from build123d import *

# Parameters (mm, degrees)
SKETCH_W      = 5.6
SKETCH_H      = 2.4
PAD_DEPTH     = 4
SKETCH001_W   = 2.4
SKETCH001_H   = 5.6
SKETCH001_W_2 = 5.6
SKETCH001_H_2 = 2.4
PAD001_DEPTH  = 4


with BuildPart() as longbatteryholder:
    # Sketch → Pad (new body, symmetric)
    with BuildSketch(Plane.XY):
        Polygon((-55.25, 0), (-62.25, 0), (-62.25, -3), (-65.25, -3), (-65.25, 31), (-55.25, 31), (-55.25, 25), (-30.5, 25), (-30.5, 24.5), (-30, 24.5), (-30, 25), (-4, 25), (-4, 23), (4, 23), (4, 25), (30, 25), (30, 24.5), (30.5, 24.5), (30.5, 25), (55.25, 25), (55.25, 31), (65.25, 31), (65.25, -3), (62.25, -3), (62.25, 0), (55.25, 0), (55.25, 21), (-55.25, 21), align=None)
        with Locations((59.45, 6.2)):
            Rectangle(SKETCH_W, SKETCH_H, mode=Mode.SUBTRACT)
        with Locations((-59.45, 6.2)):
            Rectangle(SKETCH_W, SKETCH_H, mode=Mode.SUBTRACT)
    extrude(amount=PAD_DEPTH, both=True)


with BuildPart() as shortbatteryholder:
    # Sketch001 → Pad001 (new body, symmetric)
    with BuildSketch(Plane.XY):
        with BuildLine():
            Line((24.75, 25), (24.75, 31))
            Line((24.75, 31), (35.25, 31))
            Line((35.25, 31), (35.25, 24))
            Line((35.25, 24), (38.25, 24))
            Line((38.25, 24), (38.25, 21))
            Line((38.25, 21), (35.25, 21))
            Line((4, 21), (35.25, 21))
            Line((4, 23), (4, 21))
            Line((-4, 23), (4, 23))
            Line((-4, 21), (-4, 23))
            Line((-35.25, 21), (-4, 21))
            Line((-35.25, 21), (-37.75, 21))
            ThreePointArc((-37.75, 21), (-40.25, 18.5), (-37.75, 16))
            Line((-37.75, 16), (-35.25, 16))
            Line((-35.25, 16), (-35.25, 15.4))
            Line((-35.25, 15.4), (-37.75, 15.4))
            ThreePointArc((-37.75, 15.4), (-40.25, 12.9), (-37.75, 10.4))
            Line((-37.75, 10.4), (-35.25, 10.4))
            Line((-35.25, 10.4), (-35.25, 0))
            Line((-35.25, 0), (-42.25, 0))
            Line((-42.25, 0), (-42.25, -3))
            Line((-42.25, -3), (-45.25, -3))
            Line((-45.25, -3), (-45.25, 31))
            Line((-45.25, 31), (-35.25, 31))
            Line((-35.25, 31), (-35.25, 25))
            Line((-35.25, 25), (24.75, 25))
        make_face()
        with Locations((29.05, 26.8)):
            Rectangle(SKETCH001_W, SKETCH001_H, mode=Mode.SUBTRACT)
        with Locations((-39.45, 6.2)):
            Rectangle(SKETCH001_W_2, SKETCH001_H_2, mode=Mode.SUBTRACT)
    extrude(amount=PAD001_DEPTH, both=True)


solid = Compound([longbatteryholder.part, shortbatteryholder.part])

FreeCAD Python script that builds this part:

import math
import FreeCAD as App
import Part
import Sketcher
from FreeCAD import Vector
Q = App.Units.Quantity


def add_polygon(sketch, points):
    """Adds a closed chain of lines whose ends are joined by coincident constraints."""
    first, n = sketch.GeometryCount, len(points)
    for a, b in zip(points, points[1:] + points[:1]):
        sketch.addGeometry(Part.LineSegment(App.Vector(*a, 0), App.Vector(*b, 0)), False)
    for i in range(n):
        sketch.addConstraint(Sketcher.Constraint("Coincident", first + i, 2, first + (i + 1) % n, 1))

doc = App.newDocument("Part")
params = doc.addObject("Spreadsheet::Sheet", "Params")
for row, (alias, value) in enumerate([
    ("sketch1_width", "7 mm"),
    ("sketch1_width2", "3 mm"),
    ("sketch1_width3", "26 mm"),
    ("sketch1_width4", "8 mm"),
    ("sketch1_height", "21 mm"),
    ("pad1_length", "8 mm"),
    ("sketch2_radius", "2.5 mm"),
    ("sketch2_width", "60 mm"),
    ("sketch2_width2", "10 mm"),
    ("sketch2_width3", "3 mm"),
    ("sketch2_width4", "8 mm"),
    ("pad2_length", "8 mm"),
], start=1):
    params.set(f"A{row}", alias)
    params.set(f"B{row}", "=" + value)
    params.setAlias(f"B{row}", alias)

body = doc.addObject("PartDesign::Body", "Body")

sketch1 = body.newObject("Sketcher::SketchObject", "Sketch")
sketch1.AttachmentSupport = (doc.getObject("XY_Plane"), [""])
sketch1.MapMode = "FlatFace"
add_polygon(sketch1, [(-62.2, 0), (-55.2, 0), (-55.2, 21), (55.2, 21), (55.2, 0), (62.2, 0), (62.2, -3), (65.2, -3), (65.2, 31), (55.2, 31), (55.2, 25), (30.5, 25), (30.5, 24.5), (30, 24.5), (30, 25), (4, 25), (4, 23), (-4, 23), (-4, 25), (-30, 25), (-30, 24.5), (-30.5, 24.5), (-30.5, 25), (-55.2, 25), (-55.2, 31), (-65.2, 31), (-65.2, -3), (-62.2, -3)])
add_polygon(sketch1, [(56.6, 5), (56.6, 7.4), (62.2, 7.4), (62.2, 5)])
add_polygon(sketch1, [(-62.2, 5), (-62.2, 7.4), (-56.6, 7.4), (-56.6, 5)])
sketch1.addConstraint([
    Sketcher.Constraint("Horizontal", 0),
    Sketcher.Constraint("Vertical", 1),
    Sketcher.Constraint("Horizontal", 2),
    Sketcher.Constraint("Vertical", 3),
    Sketcher.Constraint("Horizontal", 4),
    Sketcher.Constraint("Vertical", 5),
    Sketcher.Constraint("Horizontal", 6),
    Sketcher.Constraint("Vertical", 7),
    Sketcher.Constraint("Horizontal", 8),
    Sketcher.Constraint("Vertical", 9),
    Sketcher.Constraint("Horizontal", 10),
    Sketcher.Constraint("Vertical", 11),
    Sketcher.Constraint("Horizontal", 12),
    Sketcher.Constraint("Vertical", 13),
    Sketcher.Constraint("Horizontal", 14),
    Sketcher.Constraint("Vertical", 15),
    Sketcher.Constraint("Horizontal", 16),
    Sketcher.Constraint("Vertical", 17),
    Sketcher.Constraint("Horizontal", 18),
    Sketcher.Constraint("Vertical", 19),
    Sketcher.Constraint("Horizontal", 20),
    Sketcher.Constraint("Vertical", 21),
    Sketcher.Constraint("Horizontal", 22),
    Sketcher.Constraint("Vertical", 23),
    Sketcher.Constraint("Horizontal", 24),
    Sketcher.Constraint("Vertical", 25),
    Sketcher.Constraint("Horizontal", 26),
    Sketcher.Constraint("Vertical", 27),
    Sketcher.Constraint("Vertical", 28),
    Sketcher.Constraint("Horizontal", 29),
    Sketcher.Constraint("Vertical", 30),
    Sketcher.Constraint("Horizontal", 31),
    Sketcher.Constraint("Vertical", 32),
    Sketcher.Constraint("Horizontal", 33),
    Sketcher.Constraint("Vertical", 34),
    Sketcher.Constraint("Horizontal", 35),
    Sketcher.Constraint("Symmetric", 0, 2, 3, 2, -1, 1),
    Sketcher.Constraint("Symmetric", 14, 2, 17, 2, -2),
    Sketcher.Constraint("Symmetric", 12, 2, 19, 2, -2),
    Sketcher.Constraint("Symmetric", 10, 2, 21, 2, -2),
    Sketcher.Constraint("Symmetric", 8, 2, 23, 2, -2),
    Sketcher.Constraint("Symmetric", 6, 2, 25, 2, -2),
    Sketcher.Constraint("Symmetric", 4, 2, 27, 2, -2),
    Sketcher.Constraint("Symmetric", 29, 2, 32, 2, -2),
    Sketcher.Constraint("Symmetric", 31, 2, 34, 2, -2),
    Sketcher.Constraint("Horizontal", 10, 2, 13, 2),
    Sketcher.Constraint("Vertical", 3, 2, 8, 2),
    Sketcher.Constraint("Vertical", 5, 2, 29, 2),
    Sketcher.Constraint("Equal", 26, 5),
    Sketcher.Constraint("Equal", 20, 11),
    Sketcher.Constraint("DistanceX", 0, 1, 0, 2, Q("7 mm")),
    Sketcher.Constraint("DistanceX", 6, 1, 6, 2, Q("3 mm")),
    Sketcher.Constraint("DistanceX", 14, 2, 14, 1, Q("26 mm")),
    Sketcher.Constraint("DistanceX", 16, 2, 16, 1, Q("8 mm")),
    Sketcher.Constraint("DistanceY", 1, 1, 1, 2, Q("21 mm")),
    Sketcher.Constraint("DistanceY", 7, 1, 7, 2, Q("34 mm")),
    Sketcher.Constraint("DistanceY", 9, 2, 9, 1, Q("6 mm")),
    Sketcher.Constraint("DistanceY", 15, 2, 15, 1, Q("2 mm")),
    Sketcher.Constraint("DistanceX", 2, 1, 2, 2, Q("110.5 mm")),
    Sketcher.Constraint("DistanceX", 12, 2, 12, 1, Q("0.5 mm")),
    Sketcher.Constraint("DistanceX", 29, 1, 29, 2, Q("5.6 mm")),
    Sketcher.Constraint("DistanceY", 28, 1, 28, 2, Q("2.4 mm")),
    Sketcher.Constraint("DistanceY", -1, 1, 30, 2, Q("5 mm")),
])
sketch1.setExpression("Constraints[86]", "Params.sketch1_width")
sketch1.setExpression("Constraints[87]", "Params.sketch1_width2")
sketch1.setExpression("Constraints[88]", "Params.sketch1_width3")
sketch1.setExpression("Constraints[89]", "Params.sketch1_width4")
sketch1.setExpression("Constraints[90]", "Params.sketch1_height")
pad1 = body.newObject("PartDesign::Pad", "Pad")
pad1.Profile = sketch1
pad1.setExpression("Length", "Params.pad1_length")
pad1.Midplane = True
body2 = doc.addObject("PartDesign::Body", "Body001")

sketch2 = body2.newObject("Sketcher::SketchObject", "Sketch001")
sketch2.AttachmentSupport = (doc.getObject("XY_Plane001"), [""])
sketch2.MapMode = "FlatFace"
sketch2.addGeometry(Part.LineSegment(Vector(24.8, 31, 0), Vector(24.8, 25, 0)), False)
sketch2.addGeometry(Part.LineSegment(Vector(24.8, 25, 0), Vector(-35.2, 25, 0)), False)
sketch2.addGeometry(Part.LineSegment(Vector(-35.2, 25, 0), Vector(-35.2, 31, 0)), False)
sketch2.addGeometry(Part.LineSegment(Vector(-35.2, 31, 0), Vector(-45.2, 31, 0)), False)
sketch2.addGeometry(Part.LineSegment(Vector(-45.2, 31, 0), Vector(-45.2, -3, 0)), False)
sketch2.addGeometry(Part.LineSegment(Vector(-45.2, -3, 0), Vector(-42.2, -3, 0)), False)
sketch2.addGeometry(Part.LineSegment(Vector(-42.2, -3, 0), Vector(-42.2, 0, 0)), False)
sketch2.addGeometry(Part.LineSegment(Vector(-42.2, 0, 0), Vector(-35.2, 0, 0)), False)
sketch2.addGeometry(Part.LineSegment(Vector(-35.2, 0, 0), Vector(-35.2, 10.4, 0)), False)
sketch2.addGeometry(Part.LineSegment(Vector(-35.2, 10.4, 0), Vector(-37.8, 10.4, 0)), False)
sketch2.addGeometry(Part.ArcOfCircle(Part.Circle(Vector(-37.8, 12.9, 0), Vector(0, 0, 1), 2.5), math.radians(90), math.radians(270)), False)
sketch2.addGeometry(Part.LineSegment(Vector(-37.8, 15.4, 0), Vector(-35.2, 15.4, 0)), False)
sketch2.addGeometry(Part.LineSegment(Vector(-35.2, 15.4, 0), Vector(-35.2, 16, 0)), False)
sketch2.addGeometry(Part.LineSegment(Vector(-35.2, 16, 0), Vector(-37.8, 16, 0)), False)
sketch2.addGeometry(Part.ArcOfCircle(Part.Circle(Vector(-37.8, 18.5, 0), Vector(0, 0, 1), 2.5), math.radians(90), math.radians(270)), False)
sketch2.addGeometry(Part.LineSegment(Vector(-37.8, 21, 0), Vector(-4, 21, 0)), False)
sketch2.addGeometry(Part.LineSegment(Vector(-4, 21, 0), Vector(-4, 23, 0)), False)
sketch2.addGeometry(Part.LineSegment(Vector(-4, 23, 0), Vector(4, 23, 0)), False)
sketch2.addGeometry(Part.LineSegment(Vector(4, 23, 0), Vector(4, 21, 0)), False)
sketch2.addGeometry(Part.LineSegment(Vector(4, 21, 0), Vector(38.2, 21, 0)), False)
sketch2.addGeometry(Part.LineSegment(Vector(38.2, 21, 0), Vector(38.2, 24, 0)), False)
sketch2.addGeometry(Part.LineSegment(Vector(38.2, 24, 0), Vector(35.2, 24, 0)), False)
sketch2.addGeometry(Part.LineSegment(Vector(35.2, 24, 0), Vector(35.2, 31, 0)), False)
sketch2.addGeometry(Part.LineSegment(Vector(35.2, 31, 0), Vector(24.8, 31, 0)), False)
add_polygon(sketch2, [(-42.2, 5), (-42.2, 7.4), (-36.6, 7.4), (-36.6, 5)])
add_polygon(sketch2, [(27.9, 24), (27.9, 29.6), (30.2, 29.6), (30.2, 24)])
sketch2.addConstraint([
    Sketcher.Constraint("Coincident", 0, 2, 1, 1),
    Sketcher.Constraint("Coincident", 1, 2, 2, 1),
    Sketcher.Constraint("Coincident", 2, 2, 3, 1),
    Sketcher.Constraint("Coincident", 3, 2, 4, 1),
    Sketcher.Constraint("Coincident", 4, 2, 5, 1),
    Sketcher.Constraint("Coincident", 5, 2, 6, 1),
    Sketcher.Constraint("Coincident", 6, 2, 7, 1),
    Sketcher.Constraint("Coincident", 7, 2, 8, 1),
    Sketcher.Constraint("Coincident", 8, 2, 9, 1),
    Sketcher.Constraint("Tangent", 9, 2, 10, 2),
    Sketcher.Constraint("Tangent", 10, 1, 11, 1),
    Sketcher.Constraint("Coincident", 11, 2, 12, 1),
    Sketcher.Constraint("Coincident", 12, 2, 13, 1),
    Sketcher.Constraint("Tangent", 13, 2, 14, 2),
    Sketcher.Constraint("Tangent", 14, 1, 15, 1),
    Sketcher.Constraint("Coincident", 15, 2, 16, 1),
    Sketcher.Constraint("Coincident", 16, 2, 17, 1),
    Sketcher.Constraint("Coincident", 17, 2, 18, 1),
    Sketcher.Constraint("Coincident", 18, 2, 19, 1),
    Sketcher.Constraint("Coincident", 19, 2, 20, 1),
    Sketcher.Constraint("Coincident", 20, 2, 21, 1),
    Sketcher.Constraint("Coincident", 21, 2, 22, 1),
    Sketcher.Constraint("Coincident", 22, 2, 23, 1),
    Sketcher.Constraint("Coincident", 23, 2, 0, 1),
    Sketcher.Constraint("Vertical", 0),
    Sketcher.Constraint("Horizontal", 1),
    Sketcher.Constraint("Vertical", 2),
    Sketcher.Constraint("Horizontal", 3),
    Sketcher.Constraint("Vertical", 4),
    Sketcher.Constraint("Horizontal", 5),
    Sketcher.Constraint("Vertical", 6),
    Sketcher.Constraint("Horizontal", 7),
    Sketcher.Constraint("Vertical", 8),
    Sketcher.Constraint("Horizontal", 9),
    Sketcher.Constraint("Horizontal", 11),
    Sketcher.Constraint("Vertical", 12),
    Sketcher.Constraint("Horizontal", 13),
    Sketcher.Constraint("Horizontal", 15),
    Sketcher.Constraint("Vertical", 16),
    Sketcher.Constraint("Horizontal", 17),
    Sketcher.Constraint("Vertical", 18),
    Sketcher.Constraint("Horizontal", 19),
    Sketcher.Constraint("Vertical", 20),
    Sketcher.Constraint("Horizontal", 21),
    Sketcher.Constraint("Vertical", 22),
    Sketcher.Constraint("Horizontal", 23),
    Sketcher.Constraint("Vertical", 24),
    Sketcher.Constraint("Horizontal", 25),
    Sketcher.Constraint("Vertical", 26),
    Sketcher.Constraint("Horizontal", 27),
    Sketcher.Constraint("Vertical", 28),
    Sketcher.Constraint("Horizontal", 29),
    Sketcher.Constraint("Vertical", 30),
    Sketcher.Constraint("Horizontal", 31),
    Sketcher.Constraint("Equal", 10, 14),
    Sketcher.Constraint("Symmetric", 15, 2, 18, 2, -2),
    Sketcher.Constraint("Symmetric", 2, 2, 22, 2, -2),
    Sketcher.Constraint("PointOnObject", 6, 2, -1),
    Sketcher.Constraint("Horizontal", 21, 2, 30, 2),
    Sketcher.Constraint("Vertical", 10, 3, 14, 3),
    Sketcher.Constraint("Vertical", 2, 2, 7, 2),
    Sketcher.Constraint("Vertical", 8, 2, 11, 2),
    Sketcher.Constraint("Vertical", 6, 2, 24, 2),
    Sketcher.Constraint("Equal", 5, 21),
    Sketcher.Constraint("Equal", 21, 6),
    Sketcher.Constraint("Equal", 6, 20),
    Sketcher.Constraint("Equal", 7, 22),
    Sketcher.Constraint("Equal", 31, 24),
    Sketcher.Constraint("Equal", 27, 28),
    Sketcher.Constraint("Radius", 10, Q("2.5 mm")),
    Sketcher.Constraint("DistanceX", 1, 2, 1, 1, Q("60 mm")),
    Sketcher.Constraint("DistanceX", 3, 2, 3, 1, Q("10 mm")),
    Sketcher.Constraint("DistanceX", 5, 1, 5, 2, Q("3 mm")),
    Sketcher.Constraint("DistanceX", 17, 1, 17, 2, Q("8 mm")),
    Sketcher.Constraint("DistanceY", 0, 2, 0, 1, Q("6 mm")),
    Sketcher.Constraint("DistanceY", 4, 2, 4, 1, Q("34 mm")),
    Sketcher.Constraint("DistanceY", 16, 1, 16, 2, Q("2 mm")),
    Sketcher.Constraint("DistanceX", 9, 2, 9, 1, Q("2.5 mm")),
    Sketcher.Constraint("DistanceX", 23, 2, 23, 1, Q("10.5 mm")),
    Sketcher.Constraint("DistanceX", 25, 1, 25, 2, Q("5.6 mm")),
    Sketcher.Constraint("DistanceX", 29, 1, 29, 2, Q("2.4 mm")),
    Sketcher.Constraint("DistanceY", 8, 1, 8, 2, Q("10.4 mm")),
    Sketcher.Constraint("DistanceY", -1, 1, 26, 2, Q("5 mm")),
    Sketcher.Constraint("DistanceX", 29, 2, 22, 2, Q("5 mm")),
])
sketch2.setExpression("Constraints[77]", "Params.sketch2_radius")
sketch2.setExpression("Constraints[78]", "Params.sketch2_width")
sketch2.setExpression("Constraints[79]", "Params.sketch2_width2")
sketch2.setExpression("Constraints[80]", "Params.sketch2_width3")
sketch2.setExpression("Constraints[81]", "Params.sketch2_width4")
pad2 = body2.newObject("PartDesign::Pad", "Pad001")
pad2.Profile = sketch2
pad2.setExpression("Length", "Params.pad2_length")
pad2.Midplane = True

doc.recompute()
